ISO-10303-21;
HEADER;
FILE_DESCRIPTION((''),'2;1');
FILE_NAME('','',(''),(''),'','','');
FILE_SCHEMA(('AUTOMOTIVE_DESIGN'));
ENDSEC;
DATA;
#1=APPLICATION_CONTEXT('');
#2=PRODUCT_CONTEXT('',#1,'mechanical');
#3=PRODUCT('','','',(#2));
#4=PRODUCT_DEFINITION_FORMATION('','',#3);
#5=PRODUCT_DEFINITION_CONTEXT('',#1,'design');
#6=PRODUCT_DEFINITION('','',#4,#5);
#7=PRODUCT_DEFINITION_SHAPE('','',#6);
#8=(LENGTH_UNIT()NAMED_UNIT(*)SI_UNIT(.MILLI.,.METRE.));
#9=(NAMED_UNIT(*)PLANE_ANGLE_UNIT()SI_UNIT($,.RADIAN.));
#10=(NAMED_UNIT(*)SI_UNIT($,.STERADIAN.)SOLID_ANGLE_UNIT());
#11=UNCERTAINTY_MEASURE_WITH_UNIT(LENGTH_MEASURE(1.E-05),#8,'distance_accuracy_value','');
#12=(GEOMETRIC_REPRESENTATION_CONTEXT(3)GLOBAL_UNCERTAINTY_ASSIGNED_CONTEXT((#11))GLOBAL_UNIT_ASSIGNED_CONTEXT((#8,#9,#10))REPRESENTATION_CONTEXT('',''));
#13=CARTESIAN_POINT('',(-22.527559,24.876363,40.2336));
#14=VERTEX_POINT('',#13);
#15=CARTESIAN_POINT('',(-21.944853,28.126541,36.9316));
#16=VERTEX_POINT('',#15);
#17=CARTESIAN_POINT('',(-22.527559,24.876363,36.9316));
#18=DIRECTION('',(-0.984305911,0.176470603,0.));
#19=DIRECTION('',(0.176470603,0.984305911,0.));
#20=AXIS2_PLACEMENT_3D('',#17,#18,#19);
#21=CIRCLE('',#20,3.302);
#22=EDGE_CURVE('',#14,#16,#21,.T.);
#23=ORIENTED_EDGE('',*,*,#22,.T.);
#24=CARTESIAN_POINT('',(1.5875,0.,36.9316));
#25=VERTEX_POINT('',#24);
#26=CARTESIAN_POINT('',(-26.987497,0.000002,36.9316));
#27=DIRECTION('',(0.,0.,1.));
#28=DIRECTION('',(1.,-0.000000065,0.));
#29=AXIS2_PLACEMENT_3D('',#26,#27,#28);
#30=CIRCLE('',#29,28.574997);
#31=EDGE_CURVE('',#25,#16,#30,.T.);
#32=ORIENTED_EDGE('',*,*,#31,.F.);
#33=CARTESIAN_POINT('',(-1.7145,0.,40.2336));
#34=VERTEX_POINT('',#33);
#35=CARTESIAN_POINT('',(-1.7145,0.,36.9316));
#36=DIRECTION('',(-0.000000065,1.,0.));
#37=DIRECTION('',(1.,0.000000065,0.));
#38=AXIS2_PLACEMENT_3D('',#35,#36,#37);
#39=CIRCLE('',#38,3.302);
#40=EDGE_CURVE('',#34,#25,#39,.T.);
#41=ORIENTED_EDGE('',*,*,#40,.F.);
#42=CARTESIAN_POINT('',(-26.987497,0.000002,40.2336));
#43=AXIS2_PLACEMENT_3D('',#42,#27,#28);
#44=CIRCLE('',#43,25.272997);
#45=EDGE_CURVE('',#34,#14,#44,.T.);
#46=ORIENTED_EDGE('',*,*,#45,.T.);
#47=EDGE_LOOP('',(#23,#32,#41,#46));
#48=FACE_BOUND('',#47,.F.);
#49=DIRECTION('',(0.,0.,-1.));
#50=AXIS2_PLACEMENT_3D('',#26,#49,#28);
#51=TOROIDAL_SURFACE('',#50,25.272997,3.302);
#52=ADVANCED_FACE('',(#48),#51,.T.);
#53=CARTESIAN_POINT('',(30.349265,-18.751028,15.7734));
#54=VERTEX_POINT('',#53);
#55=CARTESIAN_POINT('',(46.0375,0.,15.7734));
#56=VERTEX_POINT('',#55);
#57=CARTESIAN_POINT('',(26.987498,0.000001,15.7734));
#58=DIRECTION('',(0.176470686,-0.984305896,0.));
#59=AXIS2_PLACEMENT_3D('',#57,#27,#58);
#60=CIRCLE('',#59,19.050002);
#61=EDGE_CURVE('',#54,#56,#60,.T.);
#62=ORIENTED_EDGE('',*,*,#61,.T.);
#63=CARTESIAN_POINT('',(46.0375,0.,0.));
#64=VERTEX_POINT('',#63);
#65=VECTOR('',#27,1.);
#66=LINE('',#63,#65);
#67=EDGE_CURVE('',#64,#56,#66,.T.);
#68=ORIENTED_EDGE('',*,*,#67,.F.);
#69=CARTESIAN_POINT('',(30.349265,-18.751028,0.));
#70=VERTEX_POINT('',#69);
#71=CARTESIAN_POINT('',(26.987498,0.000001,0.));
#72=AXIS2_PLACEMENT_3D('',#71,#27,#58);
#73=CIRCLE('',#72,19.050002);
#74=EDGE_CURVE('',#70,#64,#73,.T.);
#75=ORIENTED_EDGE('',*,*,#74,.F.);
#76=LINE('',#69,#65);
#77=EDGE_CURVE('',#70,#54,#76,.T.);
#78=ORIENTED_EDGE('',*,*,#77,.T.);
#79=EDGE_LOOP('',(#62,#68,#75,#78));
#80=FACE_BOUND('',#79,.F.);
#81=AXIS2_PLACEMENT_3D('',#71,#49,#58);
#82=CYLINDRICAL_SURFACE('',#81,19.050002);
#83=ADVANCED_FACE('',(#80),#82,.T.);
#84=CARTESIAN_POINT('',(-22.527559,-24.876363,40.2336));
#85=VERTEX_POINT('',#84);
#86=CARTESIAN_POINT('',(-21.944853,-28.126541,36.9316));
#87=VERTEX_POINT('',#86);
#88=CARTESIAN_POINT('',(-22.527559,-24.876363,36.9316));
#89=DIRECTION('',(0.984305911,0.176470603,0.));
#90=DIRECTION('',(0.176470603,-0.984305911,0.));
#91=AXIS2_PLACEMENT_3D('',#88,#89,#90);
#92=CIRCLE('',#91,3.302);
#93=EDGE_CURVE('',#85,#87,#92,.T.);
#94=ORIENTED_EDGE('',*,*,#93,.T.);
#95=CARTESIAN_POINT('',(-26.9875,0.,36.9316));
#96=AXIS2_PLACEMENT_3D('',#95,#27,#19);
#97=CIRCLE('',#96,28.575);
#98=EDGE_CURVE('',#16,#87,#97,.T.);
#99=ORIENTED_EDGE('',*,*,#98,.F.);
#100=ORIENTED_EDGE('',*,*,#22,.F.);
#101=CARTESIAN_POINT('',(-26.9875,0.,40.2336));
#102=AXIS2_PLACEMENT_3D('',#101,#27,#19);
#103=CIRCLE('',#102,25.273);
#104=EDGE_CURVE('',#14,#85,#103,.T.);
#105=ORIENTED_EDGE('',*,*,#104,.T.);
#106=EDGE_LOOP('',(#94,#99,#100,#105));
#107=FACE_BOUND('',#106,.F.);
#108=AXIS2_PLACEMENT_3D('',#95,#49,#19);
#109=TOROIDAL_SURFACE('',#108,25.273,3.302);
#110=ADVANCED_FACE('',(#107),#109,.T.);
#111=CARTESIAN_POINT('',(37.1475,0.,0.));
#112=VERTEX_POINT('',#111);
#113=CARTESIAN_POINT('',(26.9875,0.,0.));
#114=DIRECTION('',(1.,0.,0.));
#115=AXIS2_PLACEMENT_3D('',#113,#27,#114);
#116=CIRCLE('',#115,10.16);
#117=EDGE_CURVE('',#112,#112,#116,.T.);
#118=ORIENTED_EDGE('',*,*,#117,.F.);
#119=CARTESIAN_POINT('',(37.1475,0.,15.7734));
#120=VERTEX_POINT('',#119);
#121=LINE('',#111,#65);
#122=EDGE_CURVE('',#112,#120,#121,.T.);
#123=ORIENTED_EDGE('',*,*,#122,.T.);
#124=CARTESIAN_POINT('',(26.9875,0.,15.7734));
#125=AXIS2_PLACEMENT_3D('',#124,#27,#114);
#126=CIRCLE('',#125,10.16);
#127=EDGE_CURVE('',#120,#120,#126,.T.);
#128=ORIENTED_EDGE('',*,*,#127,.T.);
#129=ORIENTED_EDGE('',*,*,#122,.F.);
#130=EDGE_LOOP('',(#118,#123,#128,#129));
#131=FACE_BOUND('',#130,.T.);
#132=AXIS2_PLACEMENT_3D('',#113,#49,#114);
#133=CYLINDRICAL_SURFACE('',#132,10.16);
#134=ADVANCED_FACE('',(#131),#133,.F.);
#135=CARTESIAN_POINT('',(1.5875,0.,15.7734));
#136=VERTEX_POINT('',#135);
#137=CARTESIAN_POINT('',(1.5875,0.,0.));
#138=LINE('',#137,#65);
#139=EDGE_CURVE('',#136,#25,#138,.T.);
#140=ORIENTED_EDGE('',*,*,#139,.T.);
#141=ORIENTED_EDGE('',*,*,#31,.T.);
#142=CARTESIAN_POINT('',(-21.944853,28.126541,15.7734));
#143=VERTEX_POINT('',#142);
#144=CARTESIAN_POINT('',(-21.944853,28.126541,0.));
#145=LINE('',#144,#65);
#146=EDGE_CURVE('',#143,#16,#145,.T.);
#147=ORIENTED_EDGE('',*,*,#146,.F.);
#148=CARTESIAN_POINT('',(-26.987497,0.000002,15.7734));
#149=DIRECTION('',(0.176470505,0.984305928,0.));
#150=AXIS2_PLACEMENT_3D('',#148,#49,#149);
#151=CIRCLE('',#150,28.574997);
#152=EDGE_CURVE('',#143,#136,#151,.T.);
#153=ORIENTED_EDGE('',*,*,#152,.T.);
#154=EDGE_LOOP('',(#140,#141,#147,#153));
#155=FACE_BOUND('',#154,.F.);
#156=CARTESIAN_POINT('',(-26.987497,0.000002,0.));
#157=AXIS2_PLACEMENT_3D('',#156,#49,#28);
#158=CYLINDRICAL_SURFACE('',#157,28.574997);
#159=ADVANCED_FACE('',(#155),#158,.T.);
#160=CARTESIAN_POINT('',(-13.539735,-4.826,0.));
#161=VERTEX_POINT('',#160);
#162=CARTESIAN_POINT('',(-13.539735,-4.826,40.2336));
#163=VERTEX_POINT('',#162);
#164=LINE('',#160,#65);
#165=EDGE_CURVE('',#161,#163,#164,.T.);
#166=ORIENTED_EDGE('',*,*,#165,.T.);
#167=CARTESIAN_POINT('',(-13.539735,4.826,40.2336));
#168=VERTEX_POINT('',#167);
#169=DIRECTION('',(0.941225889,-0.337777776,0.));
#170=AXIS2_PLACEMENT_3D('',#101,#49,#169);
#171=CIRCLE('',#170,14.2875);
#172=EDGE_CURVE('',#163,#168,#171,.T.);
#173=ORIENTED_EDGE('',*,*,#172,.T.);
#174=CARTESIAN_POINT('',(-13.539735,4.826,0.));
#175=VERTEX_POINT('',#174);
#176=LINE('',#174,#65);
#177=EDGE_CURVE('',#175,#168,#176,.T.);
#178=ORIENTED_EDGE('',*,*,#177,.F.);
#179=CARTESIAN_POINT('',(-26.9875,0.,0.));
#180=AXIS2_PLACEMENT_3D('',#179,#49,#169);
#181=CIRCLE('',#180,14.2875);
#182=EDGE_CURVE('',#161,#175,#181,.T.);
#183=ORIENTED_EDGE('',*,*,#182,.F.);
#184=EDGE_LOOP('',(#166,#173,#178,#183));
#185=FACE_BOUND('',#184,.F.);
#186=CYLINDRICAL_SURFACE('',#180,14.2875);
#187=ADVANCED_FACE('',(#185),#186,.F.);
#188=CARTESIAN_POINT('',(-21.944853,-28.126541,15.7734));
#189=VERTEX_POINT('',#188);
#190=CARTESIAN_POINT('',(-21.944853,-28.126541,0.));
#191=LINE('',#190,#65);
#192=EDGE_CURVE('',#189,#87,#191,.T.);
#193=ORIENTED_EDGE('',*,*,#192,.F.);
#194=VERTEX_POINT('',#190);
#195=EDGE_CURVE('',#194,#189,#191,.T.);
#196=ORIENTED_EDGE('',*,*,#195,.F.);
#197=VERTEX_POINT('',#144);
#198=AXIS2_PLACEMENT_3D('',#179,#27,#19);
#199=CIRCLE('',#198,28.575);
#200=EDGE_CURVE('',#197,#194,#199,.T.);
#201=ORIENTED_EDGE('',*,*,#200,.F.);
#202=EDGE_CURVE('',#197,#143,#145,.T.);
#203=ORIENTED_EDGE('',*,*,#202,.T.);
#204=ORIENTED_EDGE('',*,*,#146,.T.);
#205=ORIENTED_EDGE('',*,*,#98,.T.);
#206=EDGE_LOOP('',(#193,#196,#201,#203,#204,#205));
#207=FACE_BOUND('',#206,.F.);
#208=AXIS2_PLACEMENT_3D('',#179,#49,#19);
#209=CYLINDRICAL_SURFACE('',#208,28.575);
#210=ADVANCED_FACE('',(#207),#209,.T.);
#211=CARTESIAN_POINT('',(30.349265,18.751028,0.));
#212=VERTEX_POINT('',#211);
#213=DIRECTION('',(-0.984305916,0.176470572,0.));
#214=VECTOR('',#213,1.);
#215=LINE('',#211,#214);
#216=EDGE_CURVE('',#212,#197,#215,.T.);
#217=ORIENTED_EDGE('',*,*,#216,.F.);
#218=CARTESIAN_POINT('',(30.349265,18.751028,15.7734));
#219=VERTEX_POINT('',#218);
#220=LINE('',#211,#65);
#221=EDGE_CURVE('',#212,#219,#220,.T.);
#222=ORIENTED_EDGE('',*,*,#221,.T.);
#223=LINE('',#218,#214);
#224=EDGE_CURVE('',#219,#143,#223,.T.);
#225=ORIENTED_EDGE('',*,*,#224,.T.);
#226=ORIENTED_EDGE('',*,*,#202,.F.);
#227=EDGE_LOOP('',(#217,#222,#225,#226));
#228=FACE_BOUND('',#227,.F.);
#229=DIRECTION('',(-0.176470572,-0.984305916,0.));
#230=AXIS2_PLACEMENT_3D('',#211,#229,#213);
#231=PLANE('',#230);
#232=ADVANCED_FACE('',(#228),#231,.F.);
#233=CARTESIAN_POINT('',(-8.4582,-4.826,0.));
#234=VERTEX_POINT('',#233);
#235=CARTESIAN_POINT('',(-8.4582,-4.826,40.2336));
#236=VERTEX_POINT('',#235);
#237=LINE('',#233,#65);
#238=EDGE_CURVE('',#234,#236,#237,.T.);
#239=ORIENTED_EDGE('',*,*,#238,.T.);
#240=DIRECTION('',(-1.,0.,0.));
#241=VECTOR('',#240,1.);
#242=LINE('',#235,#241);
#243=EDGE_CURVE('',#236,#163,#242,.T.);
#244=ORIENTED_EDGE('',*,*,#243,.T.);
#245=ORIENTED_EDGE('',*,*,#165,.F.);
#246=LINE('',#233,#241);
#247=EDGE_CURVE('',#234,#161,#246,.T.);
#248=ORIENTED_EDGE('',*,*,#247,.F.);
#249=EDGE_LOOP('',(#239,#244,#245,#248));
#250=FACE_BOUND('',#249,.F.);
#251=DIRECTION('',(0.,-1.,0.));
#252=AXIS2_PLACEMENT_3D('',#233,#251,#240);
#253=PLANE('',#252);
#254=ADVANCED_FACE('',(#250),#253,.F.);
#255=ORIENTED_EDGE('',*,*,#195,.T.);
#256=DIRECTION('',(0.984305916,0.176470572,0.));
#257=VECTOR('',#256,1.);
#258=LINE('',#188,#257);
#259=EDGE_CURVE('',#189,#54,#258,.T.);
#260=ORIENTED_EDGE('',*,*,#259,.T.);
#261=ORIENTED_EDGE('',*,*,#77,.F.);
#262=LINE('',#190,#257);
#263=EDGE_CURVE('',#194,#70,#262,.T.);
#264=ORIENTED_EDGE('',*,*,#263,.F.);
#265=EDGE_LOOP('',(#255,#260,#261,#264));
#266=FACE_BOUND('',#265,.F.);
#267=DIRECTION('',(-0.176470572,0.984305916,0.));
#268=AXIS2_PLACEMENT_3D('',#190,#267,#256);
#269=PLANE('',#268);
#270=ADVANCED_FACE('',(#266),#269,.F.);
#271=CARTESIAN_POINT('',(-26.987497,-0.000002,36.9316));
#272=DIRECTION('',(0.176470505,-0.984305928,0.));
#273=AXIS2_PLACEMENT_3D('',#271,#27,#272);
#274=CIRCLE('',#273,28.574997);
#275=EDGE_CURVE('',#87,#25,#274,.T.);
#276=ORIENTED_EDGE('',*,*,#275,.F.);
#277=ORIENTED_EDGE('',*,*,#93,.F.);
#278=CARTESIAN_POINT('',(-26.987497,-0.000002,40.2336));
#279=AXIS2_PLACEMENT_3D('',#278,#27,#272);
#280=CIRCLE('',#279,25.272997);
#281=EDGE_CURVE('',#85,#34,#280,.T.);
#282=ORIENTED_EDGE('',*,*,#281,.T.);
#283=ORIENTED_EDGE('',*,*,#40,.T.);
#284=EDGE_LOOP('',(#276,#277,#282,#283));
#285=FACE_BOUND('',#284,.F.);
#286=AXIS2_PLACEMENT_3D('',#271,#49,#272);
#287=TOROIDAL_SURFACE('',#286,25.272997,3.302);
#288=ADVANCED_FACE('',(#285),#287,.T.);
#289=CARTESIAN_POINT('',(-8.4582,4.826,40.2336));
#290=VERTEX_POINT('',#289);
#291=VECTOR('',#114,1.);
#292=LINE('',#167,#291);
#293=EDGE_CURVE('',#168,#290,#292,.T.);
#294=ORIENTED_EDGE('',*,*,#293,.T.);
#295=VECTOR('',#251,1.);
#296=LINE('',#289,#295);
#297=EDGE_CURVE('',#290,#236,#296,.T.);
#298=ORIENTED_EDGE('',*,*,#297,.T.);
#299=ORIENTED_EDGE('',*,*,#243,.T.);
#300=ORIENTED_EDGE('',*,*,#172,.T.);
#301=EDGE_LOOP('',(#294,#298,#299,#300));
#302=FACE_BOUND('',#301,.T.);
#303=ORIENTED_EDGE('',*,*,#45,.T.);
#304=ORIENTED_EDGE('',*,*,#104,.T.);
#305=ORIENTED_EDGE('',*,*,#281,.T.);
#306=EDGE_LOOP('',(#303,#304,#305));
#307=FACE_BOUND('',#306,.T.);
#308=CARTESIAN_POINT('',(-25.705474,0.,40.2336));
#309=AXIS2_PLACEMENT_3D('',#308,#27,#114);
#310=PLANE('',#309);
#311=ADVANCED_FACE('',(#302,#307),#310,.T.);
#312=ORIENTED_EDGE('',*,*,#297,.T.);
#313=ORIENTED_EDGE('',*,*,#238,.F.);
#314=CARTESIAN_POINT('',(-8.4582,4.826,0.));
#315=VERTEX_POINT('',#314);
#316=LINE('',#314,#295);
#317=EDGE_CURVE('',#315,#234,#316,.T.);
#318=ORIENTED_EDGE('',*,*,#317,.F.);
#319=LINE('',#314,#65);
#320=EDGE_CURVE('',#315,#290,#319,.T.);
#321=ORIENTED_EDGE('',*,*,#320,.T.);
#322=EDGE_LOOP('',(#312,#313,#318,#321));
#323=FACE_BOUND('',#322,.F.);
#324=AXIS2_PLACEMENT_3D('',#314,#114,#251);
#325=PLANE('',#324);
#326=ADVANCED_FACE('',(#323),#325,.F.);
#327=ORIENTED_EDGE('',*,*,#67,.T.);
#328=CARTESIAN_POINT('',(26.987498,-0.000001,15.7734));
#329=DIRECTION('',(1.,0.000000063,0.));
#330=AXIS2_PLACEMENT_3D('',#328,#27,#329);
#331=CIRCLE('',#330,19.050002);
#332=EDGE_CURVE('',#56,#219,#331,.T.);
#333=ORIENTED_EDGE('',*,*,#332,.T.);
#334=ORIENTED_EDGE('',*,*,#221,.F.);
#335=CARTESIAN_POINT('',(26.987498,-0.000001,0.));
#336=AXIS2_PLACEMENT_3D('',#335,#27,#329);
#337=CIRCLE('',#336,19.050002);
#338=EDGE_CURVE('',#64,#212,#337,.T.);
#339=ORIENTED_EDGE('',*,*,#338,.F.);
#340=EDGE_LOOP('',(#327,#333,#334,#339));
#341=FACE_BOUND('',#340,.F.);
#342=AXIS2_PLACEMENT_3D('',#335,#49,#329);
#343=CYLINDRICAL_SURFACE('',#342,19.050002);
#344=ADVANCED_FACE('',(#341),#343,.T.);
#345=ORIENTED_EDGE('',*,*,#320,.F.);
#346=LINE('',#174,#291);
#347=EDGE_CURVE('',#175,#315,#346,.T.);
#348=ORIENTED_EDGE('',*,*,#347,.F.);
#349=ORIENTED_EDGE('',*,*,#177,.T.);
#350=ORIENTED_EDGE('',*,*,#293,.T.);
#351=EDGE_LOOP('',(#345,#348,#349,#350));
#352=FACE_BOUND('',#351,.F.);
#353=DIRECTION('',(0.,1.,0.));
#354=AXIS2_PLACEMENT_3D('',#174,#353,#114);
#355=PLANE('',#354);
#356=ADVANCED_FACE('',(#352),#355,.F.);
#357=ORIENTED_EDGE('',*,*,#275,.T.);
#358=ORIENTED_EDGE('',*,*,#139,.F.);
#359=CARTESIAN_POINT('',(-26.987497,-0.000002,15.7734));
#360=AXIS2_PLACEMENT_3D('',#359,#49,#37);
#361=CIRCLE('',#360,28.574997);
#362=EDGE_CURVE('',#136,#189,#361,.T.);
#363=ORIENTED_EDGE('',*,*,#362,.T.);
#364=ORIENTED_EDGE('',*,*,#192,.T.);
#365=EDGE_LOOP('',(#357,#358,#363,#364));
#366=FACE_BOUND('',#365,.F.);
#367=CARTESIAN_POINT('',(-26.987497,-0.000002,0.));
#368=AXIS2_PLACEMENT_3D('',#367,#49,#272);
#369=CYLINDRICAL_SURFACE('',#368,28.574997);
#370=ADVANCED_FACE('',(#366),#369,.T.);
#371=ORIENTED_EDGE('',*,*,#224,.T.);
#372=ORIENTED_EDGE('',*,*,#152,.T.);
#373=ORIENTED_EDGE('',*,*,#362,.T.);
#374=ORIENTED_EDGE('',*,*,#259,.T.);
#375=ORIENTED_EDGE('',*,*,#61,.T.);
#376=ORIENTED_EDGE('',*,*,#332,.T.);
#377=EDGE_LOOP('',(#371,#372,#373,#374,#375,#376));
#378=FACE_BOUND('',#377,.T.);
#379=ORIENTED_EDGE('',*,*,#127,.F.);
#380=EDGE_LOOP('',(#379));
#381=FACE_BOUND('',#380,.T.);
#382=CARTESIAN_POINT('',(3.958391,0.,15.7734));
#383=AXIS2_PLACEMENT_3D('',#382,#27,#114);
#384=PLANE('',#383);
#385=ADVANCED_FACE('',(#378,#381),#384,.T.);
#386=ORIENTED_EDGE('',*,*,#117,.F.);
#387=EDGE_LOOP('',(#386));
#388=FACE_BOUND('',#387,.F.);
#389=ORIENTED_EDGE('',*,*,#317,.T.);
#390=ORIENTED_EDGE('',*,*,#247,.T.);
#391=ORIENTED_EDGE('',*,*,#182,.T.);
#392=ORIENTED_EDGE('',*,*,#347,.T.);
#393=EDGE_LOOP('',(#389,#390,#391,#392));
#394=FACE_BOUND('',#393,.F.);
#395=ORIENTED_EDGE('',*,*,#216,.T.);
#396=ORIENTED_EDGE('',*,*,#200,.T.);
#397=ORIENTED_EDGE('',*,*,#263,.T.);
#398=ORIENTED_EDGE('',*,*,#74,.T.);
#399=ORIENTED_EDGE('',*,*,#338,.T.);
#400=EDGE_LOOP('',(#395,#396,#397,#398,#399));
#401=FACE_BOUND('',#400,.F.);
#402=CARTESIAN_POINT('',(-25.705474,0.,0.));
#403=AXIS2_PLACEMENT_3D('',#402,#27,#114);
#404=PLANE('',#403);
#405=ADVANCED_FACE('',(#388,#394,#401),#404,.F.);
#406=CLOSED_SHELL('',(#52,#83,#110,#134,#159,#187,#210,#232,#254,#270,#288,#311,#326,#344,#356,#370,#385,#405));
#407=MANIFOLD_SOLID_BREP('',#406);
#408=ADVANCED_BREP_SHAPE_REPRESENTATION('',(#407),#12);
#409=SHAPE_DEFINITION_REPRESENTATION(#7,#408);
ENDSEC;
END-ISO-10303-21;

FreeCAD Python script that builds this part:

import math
import FreeCAD as App
import Part
import Sketcher
Q = App.Units.Quantity


def edges_at(feature, points):
    """Names of the edges that pass closest to the given points."""
    edges = feature.Shape.Edges
    near = lambda p: min(range(len(edges)), key=lambda i: edges[i].distToShape(Part.Vertex(*p))[0])
    return sorted({f"Edge{near(p) + 1}" for p in points})

doc = App.newDocument("Part")
body = doc.addObject("PartDesign::Body", "Body")

# Sketch on XY plane
sketch1 = body.newObject("Sketcher::SketchObject", "Sketch")
sketch1.AttachmentSupport = (doc.getObject("XY_Plane"), [""])
sketch1.MapMode = "FlatFace"
sketch1.addGeometry(Part.ArcOfCircle(Part.Circle(App.Vector(-26.987497, 0.000002, 0), App.Vector(0, 0, 1), 28.574997), math.radians(-0.000004), math.radians(79.835756)), False)
sketch1.addGeometry(Part.ArcOfCircle(Part.Circle(App.Vector(-26.987497, -0.000002, 0), App.Vector(0, 0, 1), 28.574997), math.radians(-79.835756), math.radians(0.000004)), False)
sketch1.addGeometry(Part.LineSegment(App.Vector(-21.944853, -28.126541, 0), App.Vector(30.349265, -18.751028, 0)), False)
sketch1.addGeometry(Part.ArcOfCircle(Part.Circle(App.Vector(26.987498, 0.000001, 0), App.Vector(0, 0, 1), 19.050002), math.radians(-79.835746), math.radians(-0.000004)), False)
sketch1.addGeometry(Part.ArcOfCircle(Part.Circle(App.Vector(26.987498, -0.000001, 0), App.Vector(0, 0, 1), 19.050002), math.radians(0.000004), math.radians(79.835746)), False)
sketch1.addGeometry(Part.LineSegment(App.Vector(30.349265, 18.751028, 0), App.Vector(-21.944853, 28.126541, 0)), False)
sketch1.addGeometry(Part.Circle(App.Vector(26.9875, 0, 0), App.Vector(0, 0, 1), 10.16), False)
sketch1.addConstraint(Sketcher.Constraint("Tangent", 0, 1, 1, 2))
sketch1.addConstraint(Sketcher.Constraint("Tangent", 1, 1, 2, 1))
sketch1.addConstraint(Sketcher.Constraint("Tangent", 2, 2, 3, 1))
sketch1.addConstraint(Sketcher.Constraint("Tangent", 3, 2, 4, 1))
sketch1.addConstraint(Sketcher.Constraint("Tangent", 4, 2, 5, 1))
sketch1.addConstraint(Sketcher.Constraint("Tangent", 5, 2, 0, 2))
sketch1.addConstraint(Sketcher.Constraint("Coincident", 6, 3, 3, 3))
sketch1.addConstraint(Sketcher.Constraint("Equal", 0, 1))
sketch1.addConstraint(Sketcher.Constraint("Equal", 3, 4))
sketch1.addConstraint(Sketcher.Constraint("Symmetric", 0, 3, 3, 3, -1, 1))
sketch1.addConstraint(Sketcher.Constraint("PointOnObject", 0, 3, -1))
sketch1.addConstraint(Sketcher.Constraint("PointOnObject", 0, 1, -1))
sketch1.addConstraint(Sketcher.Constraint("PointOnObject", 3, 2, -1))
sketch1.addConstraint(Sketcher.Constraint("Diameter", 6, Q("0.8 in")))
sketch1.addConstraint(Sketcher.Constraint("Radius", 3, Q("0.7500001 in")))
sketch1.addConstraint(Sketcher.Constraint("Radius", 0, Q("1.1249999 in")))
sketch1.addConstraint(Sketcher.Constraint("DistanceX", 0, 1, 3, 3, Q("0.9999999 in")))
pad1 = body.newObject("PartDesign::Pad", "Pad")
pad1.Profile = sketch1
pad1.Length = Q("0.621 in")

# Sketch on XY plane
sketch2 = body.newObject("Sketcher::SketchObject", "Sketch001")
sketch2.AttachmentSupport = (doc.getObject("XY_Plane"), [""])
sketch2.MapMode = "FlatFace"
sketch2.addGeometry(Part.ArcOfCircle(Part.Circle(App.Vector(-26.987497, -0.000002, 0), App.Vector(0, 0, 1), 28.574997), math.radians(-79.835756), math.radians(0.000004)), False)
sketch2.addGeometry(Part.ArcOfCircle(Part.Circle(App.Vector(-26.987497, 0.000002, 0), App.Vector(0, 0, 1), 28.574997), math.radians(-0.000004), math.radians(79.835756)), False)
sketch2.addGeometry(Part.ArcOfCircle(Part.Circle(App.Vector(-26.9875, 0, 0), App.Vector(0, 0, 1), 28.575), math.radians(79.835751), math.radians(280.164249)), False)
sketch2.addGeometry(Part.LineSegment(App.Vector(-8.4582, -4.826, 0), App.Vector(-13.539735, -4.826, 0)), False)
sketch2.addGeometry(Part.ArcOfCircle(Part.Circle(App.Vector(-26.9875, 0, 0), App.Vector(0, 0, 1), 14.2875), math.radians(19.741542), math.radians(340.258458)), False)
sketch2.addGeometry(Part.LineSegment(App.Vector(-13.539735, 4.826, 0), App.Vector(-8.4582, 4.826, 0)), False)
sketch2.addGeometry(Part.LineSegment(App.Vector(-8.4582, 4.826, 0), App.Vector(-8.4582, -4.826, 0)), False)
sketch2.addConstraint(Sketcher.Constraint("Tangent", 0, 2, 1, 1))
sketch2.addConstraint(Sketcher.Constraint("Tangent", 1, 2, 2, 1))
sketch2.addConstraint(Sketcher.Constraint("Tangent", 2, 2, 0, 1))
sketch2.addConstraint(Sketcher.Constraint("Coincident", 3, 2, 4, 2))
sketch2.addConstraint(Sketcher.Constraint("Coincident", 4, 1, 5, 1))
sketch2.addConstraint(Sketcher.Constraint("Coincident", 5, 2, 6, 1))
sketch2.addConstraint(Sketcher.Constraint("Coincident", 6, 2, 3, 1))
sketch2.addConstraint(Sketcher.Constraint("Horizontal", 3))
sketch2.addConstraint(Sketcher.Constraint("Horizontal", 5))
sketch2.addConstraint(Sketcher.Constraint("Vertical", 6))
sketch2.addConstraint(Sketcher.Constraint("Coincident", 4, 3, 0, 3))
sketch2.addConstraint(Sketcher.Constraint("Symmetric", 1, 2, 2, 2, -1))
sketch2.addConstraint(Sketcher.Constraint("PointOnObject", 0, 2, -1))
sketch2.addConstraint(Sketcher.Constraint("Vertical", 3, 2, 4, 1))
sketch2.addConstraint(Sketcher.Constraint("Radius", 0, Q("1.1249999 in")))
sketch2.addConstraint(Sketcher.Constraint("Radius", 4, Q("0.5625 in")))
sketch2.addConstraint(Sketcher.Constraint("DistanceY", 6, 2, 6, 1, Q("0.38 in")))
sketch2.addConstraint(Sketcher.Constraint("DistanceX", 0, 3, -1, 1, Q("1.0624999 in")))
sketch2.addConstraint(Sketcher.Constraint("DistanceX", 5, 2, -1, 1, Q("0.333 in")))
sketch2.addConstraint(Sketcher.Constraint("DistanceY", -1, 1, 1, 2, Q("28.126541 mm")))
pad2 = body.newObject("PartDesign::Pad", "Pad001")
pad2.Profile = sketch2
pad2.Length = Q("1.584 in")
doc.recompute()

fillet = body.newObject("PartDesign::Fillet", "Fillet")
fillet.Base = (pad2, edges_at(pad2, [(-55.562, 0, 40.234)]))
fillet.Radius = Q("0.13 in")

doc.recompute()
